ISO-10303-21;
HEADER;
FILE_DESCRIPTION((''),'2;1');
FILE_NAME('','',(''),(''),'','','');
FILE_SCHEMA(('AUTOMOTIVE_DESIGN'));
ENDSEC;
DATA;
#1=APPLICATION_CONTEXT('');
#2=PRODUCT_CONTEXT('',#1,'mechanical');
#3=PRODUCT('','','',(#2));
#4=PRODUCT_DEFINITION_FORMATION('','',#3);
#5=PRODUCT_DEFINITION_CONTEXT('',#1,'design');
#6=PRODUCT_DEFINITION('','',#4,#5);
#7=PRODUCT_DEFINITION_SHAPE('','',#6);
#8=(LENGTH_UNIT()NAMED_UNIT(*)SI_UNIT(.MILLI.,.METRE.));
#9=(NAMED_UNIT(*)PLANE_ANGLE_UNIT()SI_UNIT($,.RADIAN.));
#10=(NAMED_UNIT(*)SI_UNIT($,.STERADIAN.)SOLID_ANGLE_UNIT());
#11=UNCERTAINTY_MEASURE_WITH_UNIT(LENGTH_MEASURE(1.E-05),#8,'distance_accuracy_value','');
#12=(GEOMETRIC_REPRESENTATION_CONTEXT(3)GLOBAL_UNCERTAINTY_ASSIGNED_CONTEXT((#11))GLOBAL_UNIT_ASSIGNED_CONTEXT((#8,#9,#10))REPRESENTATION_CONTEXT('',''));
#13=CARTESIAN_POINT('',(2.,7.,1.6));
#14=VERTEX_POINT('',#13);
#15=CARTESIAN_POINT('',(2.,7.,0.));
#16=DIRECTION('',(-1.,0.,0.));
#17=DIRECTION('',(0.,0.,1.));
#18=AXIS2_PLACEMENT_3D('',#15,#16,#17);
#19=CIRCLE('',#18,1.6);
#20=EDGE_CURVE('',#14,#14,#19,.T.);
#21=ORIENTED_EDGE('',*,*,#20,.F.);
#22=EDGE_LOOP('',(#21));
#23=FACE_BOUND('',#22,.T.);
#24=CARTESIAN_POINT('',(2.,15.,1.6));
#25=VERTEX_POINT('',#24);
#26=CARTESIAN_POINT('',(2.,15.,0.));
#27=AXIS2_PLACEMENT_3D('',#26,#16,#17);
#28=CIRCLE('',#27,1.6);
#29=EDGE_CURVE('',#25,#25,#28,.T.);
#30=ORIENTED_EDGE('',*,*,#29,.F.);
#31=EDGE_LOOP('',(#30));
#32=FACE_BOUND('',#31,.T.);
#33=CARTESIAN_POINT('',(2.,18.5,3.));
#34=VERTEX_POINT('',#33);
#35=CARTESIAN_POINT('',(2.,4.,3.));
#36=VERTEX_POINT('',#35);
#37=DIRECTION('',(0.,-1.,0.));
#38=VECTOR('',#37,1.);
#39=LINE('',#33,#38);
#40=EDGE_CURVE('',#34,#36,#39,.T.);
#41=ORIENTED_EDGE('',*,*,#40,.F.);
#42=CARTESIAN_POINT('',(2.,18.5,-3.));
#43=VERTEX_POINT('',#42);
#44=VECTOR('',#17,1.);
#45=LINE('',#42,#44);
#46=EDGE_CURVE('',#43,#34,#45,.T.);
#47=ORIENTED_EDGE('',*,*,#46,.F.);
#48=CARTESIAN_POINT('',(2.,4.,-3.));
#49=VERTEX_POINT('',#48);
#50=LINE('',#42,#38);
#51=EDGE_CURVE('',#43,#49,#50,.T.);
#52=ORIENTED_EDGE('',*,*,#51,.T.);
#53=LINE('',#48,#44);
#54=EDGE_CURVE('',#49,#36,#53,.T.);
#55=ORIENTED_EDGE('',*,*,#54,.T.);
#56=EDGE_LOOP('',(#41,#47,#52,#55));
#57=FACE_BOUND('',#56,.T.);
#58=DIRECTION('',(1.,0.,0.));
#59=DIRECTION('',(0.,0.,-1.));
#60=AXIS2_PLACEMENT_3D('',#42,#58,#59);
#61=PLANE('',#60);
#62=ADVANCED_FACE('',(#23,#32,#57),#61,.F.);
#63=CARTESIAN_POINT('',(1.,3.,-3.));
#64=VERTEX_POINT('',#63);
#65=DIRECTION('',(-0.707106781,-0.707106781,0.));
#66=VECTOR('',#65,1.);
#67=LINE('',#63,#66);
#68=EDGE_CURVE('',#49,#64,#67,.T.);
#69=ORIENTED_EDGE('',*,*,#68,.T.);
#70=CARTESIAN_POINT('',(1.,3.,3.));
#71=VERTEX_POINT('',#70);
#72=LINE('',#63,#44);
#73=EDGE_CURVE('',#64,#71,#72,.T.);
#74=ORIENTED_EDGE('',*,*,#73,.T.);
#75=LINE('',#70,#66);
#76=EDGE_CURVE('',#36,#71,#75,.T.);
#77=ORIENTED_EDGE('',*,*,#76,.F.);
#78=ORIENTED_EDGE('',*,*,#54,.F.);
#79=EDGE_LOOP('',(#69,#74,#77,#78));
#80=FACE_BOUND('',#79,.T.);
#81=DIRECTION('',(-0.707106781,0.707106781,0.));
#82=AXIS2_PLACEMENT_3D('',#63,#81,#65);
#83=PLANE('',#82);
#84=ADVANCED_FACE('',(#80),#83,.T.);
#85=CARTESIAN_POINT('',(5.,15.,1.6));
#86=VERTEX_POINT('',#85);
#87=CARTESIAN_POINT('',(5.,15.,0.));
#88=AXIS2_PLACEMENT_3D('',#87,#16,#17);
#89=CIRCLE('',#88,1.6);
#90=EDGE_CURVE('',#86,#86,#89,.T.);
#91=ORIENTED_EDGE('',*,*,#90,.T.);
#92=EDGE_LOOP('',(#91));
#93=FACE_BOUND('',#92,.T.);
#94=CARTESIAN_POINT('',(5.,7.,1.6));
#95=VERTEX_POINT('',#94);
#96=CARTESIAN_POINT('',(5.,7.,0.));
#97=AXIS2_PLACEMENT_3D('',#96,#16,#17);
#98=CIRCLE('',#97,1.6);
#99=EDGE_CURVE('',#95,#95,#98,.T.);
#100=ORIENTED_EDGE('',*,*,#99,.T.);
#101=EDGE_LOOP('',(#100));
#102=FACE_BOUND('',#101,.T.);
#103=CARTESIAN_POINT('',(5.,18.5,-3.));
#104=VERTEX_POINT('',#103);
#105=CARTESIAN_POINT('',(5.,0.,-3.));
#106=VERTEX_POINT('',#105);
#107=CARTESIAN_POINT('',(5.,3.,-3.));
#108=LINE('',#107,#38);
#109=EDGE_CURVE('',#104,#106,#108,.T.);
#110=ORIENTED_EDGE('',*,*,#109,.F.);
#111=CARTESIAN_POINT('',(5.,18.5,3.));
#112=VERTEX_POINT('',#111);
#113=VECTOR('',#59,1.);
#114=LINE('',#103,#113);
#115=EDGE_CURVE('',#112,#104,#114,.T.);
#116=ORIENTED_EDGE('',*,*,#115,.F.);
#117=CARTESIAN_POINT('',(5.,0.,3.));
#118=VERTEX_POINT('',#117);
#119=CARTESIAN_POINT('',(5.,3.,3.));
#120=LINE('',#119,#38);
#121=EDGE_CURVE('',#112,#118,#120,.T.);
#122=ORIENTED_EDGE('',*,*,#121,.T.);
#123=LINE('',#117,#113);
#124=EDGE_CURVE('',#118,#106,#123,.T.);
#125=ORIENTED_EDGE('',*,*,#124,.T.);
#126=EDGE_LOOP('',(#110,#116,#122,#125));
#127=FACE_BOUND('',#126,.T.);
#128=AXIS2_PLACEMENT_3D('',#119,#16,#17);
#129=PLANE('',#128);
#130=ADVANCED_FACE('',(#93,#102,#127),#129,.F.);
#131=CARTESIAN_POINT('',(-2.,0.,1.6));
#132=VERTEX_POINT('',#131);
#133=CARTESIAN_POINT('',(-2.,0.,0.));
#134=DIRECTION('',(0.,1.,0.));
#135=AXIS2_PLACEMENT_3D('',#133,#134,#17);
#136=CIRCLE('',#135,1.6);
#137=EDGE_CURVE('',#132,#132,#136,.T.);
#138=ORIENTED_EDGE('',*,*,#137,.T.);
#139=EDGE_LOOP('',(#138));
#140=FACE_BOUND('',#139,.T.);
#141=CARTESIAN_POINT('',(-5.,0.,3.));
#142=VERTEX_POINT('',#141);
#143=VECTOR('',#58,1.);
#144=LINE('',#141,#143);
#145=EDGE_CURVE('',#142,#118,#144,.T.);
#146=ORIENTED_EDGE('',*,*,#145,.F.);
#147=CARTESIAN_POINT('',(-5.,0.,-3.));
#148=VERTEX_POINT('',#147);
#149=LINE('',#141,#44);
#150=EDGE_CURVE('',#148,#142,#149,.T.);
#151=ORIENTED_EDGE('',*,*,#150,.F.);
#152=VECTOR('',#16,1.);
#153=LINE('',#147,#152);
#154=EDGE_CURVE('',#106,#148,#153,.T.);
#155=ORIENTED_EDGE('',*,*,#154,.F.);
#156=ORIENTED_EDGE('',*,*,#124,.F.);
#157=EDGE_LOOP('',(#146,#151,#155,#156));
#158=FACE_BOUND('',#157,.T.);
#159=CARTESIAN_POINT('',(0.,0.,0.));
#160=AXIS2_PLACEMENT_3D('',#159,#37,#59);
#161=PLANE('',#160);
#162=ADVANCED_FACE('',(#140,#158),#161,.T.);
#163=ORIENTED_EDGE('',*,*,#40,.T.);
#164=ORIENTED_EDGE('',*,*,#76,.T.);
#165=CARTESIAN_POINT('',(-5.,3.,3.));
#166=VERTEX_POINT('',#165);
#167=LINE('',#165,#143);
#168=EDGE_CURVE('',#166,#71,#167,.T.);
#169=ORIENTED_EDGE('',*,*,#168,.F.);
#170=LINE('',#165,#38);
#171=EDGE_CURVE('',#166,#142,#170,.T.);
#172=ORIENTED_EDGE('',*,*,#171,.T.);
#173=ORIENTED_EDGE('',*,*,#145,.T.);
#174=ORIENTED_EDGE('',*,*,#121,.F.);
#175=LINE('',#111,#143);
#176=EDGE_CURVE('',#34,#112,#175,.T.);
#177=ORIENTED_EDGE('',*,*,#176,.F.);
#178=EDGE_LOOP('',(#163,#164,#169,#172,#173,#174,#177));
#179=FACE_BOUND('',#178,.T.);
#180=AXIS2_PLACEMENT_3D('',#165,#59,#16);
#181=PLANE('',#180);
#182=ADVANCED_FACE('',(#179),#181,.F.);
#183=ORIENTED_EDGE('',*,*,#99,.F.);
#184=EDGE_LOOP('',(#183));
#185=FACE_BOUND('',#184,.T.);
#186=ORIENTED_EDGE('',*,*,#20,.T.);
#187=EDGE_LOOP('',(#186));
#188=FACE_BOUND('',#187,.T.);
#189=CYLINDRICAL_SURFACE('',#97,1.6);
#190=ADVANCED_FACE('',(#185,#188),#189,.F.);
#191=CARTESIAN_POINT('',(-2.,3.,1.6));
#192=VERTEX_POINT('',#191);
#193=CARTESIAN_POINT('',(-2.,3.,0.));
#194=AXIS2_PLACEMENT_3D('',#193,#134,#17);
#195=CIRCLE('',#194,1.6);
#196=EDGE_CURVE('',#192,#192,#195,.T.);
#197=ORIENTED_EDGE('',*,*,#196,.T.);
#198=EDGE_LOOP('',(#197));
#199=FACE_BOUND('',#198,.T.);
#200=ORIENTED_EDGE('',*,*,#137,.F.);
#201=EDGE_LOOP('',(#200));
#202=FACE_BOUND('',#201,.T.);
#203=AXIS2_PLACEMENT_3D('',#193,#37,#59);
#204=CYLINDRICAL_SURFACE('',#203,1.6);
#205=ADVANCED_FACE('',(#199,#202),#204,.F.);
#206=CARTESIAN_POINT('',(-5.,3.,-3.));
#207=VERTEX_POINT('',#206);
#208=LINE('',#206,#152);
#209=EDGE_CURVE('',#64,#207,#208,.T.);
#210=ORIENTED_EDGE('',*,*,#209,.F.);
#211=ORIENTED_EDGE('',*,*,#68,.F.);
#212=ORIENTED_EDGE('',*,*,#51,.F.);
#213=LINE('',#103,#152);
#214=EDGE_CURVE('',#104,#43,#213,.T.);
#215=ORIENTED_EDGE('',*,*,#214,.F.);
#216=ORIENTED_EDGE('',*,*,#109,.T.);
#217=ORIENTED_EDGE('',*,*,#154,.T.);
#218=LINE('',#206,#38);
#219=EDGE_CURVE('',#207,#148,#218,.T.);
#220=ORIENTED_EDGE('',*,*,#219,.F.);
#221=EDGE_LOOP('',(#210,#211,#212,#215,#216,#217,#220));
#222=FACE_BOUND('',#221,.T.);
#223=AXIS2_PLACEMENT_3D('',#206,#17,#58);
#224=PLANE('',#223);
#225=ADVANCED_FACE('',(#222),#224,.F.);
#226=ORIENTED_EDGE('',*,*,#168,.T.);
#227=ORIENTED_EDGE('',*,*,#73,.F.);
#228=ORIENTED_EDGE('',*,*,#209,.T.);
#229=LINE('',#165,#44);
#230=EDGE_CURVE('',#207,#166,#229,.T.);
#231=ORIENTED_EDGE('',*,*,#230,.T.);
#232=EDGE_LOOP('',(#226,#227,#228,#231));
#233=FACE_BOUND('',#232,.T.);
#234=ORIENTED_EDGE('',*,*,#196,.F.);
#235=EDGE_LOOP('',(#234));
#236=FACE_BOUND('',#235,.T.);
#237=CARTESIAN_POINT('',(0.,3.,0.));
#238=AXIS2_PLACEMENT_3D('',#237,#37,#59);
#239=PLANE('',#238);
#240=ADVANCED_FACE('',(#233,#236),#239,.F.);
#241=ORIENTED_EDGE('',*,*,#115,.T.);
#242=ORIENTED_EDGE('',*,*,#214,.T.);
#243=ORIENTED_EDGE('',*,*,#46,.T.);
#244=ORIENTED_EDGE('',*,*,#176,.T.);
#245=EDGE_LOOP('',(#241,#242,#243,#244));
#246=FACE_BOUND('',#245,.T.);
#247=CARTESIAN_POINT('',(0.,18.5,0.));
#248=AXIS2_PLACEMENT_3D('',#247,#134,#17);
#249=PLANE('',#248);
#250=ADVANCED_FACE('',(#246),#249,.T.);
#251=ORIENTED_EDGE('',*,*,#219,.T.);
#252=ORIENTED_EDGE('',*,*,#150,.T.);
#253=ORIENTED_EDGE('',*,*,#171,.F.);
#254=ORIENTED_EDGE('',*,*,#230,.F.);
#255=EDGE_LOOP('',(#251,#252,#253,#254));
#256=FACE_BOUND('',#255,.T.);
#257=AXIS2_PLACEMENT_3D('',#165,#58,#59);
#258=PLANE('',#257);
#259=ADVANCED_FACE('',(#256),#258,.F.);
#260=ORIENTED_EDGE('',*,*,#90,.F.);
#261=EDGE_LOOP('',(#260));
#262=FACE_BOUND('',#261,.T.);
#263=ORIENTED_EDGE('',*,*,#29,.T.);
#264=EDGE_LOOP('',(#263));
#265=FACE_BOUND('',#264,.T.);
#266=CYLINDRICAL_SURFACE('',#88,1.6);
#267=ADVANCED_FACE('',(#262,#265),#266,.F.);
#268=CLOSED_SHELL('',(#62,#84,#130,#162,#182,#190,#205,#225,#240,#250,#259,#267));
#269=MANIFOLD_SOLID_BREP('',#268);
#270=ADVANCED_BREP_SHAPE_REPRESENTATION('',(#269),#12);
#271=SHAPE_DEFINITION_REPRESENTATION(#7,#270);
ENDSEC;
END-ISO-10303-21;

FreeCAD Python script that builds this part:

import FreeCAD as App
import Part
import Sketcher
from FreeCAD import Vector
Q = App.Units.Quantity

doc = App.newDocument("Part")
body = doc.addObject("PartDesign::Body", "Body")

sketch1 = doc.addObject("Sketcher::SketchObject", "Sketch")
body.addObject(sketch1)
sketch1.AttachmentSupport = (doc.XZ_Plane, [""])
sketch1.MapMode = "FlatFace"
sketch1.addGeometry([
    Part.LineSegment(Vector(-5, -3, 0), Vector(-5, 3, 0)),
    Part.LineSegment(Vector(-5, 3, 0), Vector(5, 3, 0)),
    Part.LineSegment(Vector(5, 3, 0), Vector(5, -3, 0)),
    Part.LineSegment(Vector(5, -3, 0), Vector(-5, -3, 0)),
    Part.Circle(Vector(-2, 0, 0), Vector(0, 0, 1), 1.6),
], False)
sketch1.addConstraint([
    Sketcher.Constraint("Coincident", 0, 2, 1, 1),
    Sketcher.Constraint("Coincident", 1, 2, 2, 1),
    Sketcher.Constraint("Coincident", 2, 2, 3, 1),
    Sketcher.Constraint("Coincident", 3, 2, 0, 1),
    Sketcher.Constraint("Vertical", 0),
    Sketcher.Constraint("Horizontal", 1),
    Sketcher.Constraint("Vertical", 2),
    Sketcher.Constraint("Horizontal", 3),
    Sketcher.Constraint("Symmetric", 0, 2, 2, 2, -1, 1),
    Sketcher.Constraint("PointOnObject", 4, 3, -1),
    Sketcher.Constraint("Diameter", 4, Q("3.2 mm")),
    Sketcher.Constraint("DistanceX", 1, 1, 1, 2, Q("10 mm")),
    Sketcher.Constraint("DistanceY", 0, 1, 0, 2, Q("6 mm")),
    Sketcher.Constraint("DistanceX", 4, 3, -1, 1, Q("2 mm")),
])
pad1 = doc.addObject("PartDesign::Pad", "Pad")
body.addObject(pad1)
pad1.Profile = sketch1
pad1.Length = 3
pad1.Reversed = True

sketch2 = doc.addObject("Sketcher::SketchObject", "Sketch001")
body.addObject(sketch2)
sketch2.AttachmentSupport = (doc.XZ_Plane, [""])
sketch2.MapMode = "FlatFace"
sketch2.AttachmentOffset = App.Placement(Vector(0, 0, -3), App.Rotation())
sketch2.addGeometry([
    Part.LineSegment(Vector(2, -3, 0), Vector(2, 3, 0)),
    Part.LineSegment(Vector(2, 3, 0), Vector(5, 3, 0)),
    Part.LineSegment(Vector(5, 3, 0), Vector(5, -3, 0)),
    Part.LineSegment(Vector(5, -3, 0), Vector(2, -3, 0)),
], False)
sketch2.addConstraint([
    Sketcher.Constraint("Coincident", 0, 2, 1, 1),
    Sketcher.Constraint("Coincident", 1, 2, 2, 1),
    Sketcher.Constraint("Coincident", 2, 2, 3, 1),
    Sketcher.Constraint("Coincident", 3, 2, 0, 1),
    Sketcher.Constraint("Vertical", 0),
    Sketcher.Constraint("Horizontal", 1),
    Sketcher.Constraint("Vertical", 2),
    Sketcher.Constraint("Horizontal", 3),
    Sketcher.Constraint("DistanceX", 1, 1, 1, 2, Q("3 mm")),
    Sketcher.Constraint("DistanceY", 0, 1, 0, 2, Q("6 mm")),
    Sketcher.Constraint("DistanceX", -1, 1, 0, 2, Q("2 mm")),
    Sketcher.Constraint("DistanceY", -1, 1, 0, 2, Q("3 mm")),
])
pad2 = doc.addObject("PartDesign::Pad", "Pad001")
body.addObject(pad2)
pad2.Profile = sketch2
pad2.Length = 15.5
pad2.Reversed = True

sketch3 = doc.addObject("Sketcher::SketchObject", "Sketch002")
body.addObject(sketch3)
sketch3.AttachmentSupport = (doc.YZ_Plane, [""])
sketch3.MapMode = "FlatFace"
sketch3.AttachmentOffset = App.Placement(Vector(0, 0, 2), App.Rotation())
sketch3.addGeometry([
    Part.Circle(Vector(7, 0, 0), Vector(0, 0, 1), 1.6),
    Part.Circle(Vector(15, 0, 0), Vector(0, 0, 1), 1.6),
], False)
sketch3.addConstraint([
    Sketcher.Constraint("Equal", 0, 1),
    Sketcher.Constraint("PointOnObject", 0, 3, -1),
    Sketcher.Constraint("PointOnObject", 1, 3, -1),
    Sketcher.Constraint("Diameter", 0, Q("3.2 mm")),
    Sketcher.Constraint("DistanceX", -1, 1, 0, 3, Q("7 mm")),
    Sketcher.Constraint("DistanceX", -1, 1, 1, 3, Q("15 mm")),
])
pocket1 = doc.addObject("PartDesign::Pocket", "Pocket")
body.addObject(pocket1)
pocket1.Profile = sketch3
pocket1.Type = "ThroughAll"
pocket1.Reversed = True

sketch4 = doc.addObject("Sketcher::SketchObject", "Sketch003")
body.addObject(sketch4)
sketch4.AttachmentSupport = (doc.XY_Plane, [""])
sketch4.MapMode = "FlatFace"
sketch4.AttachmentOffset = App.Placement(Vector(0, 0, 3), App.Rotation())
sketch4.addGeometry([
    Part.LineSegment(Vector(2, 4, 0), Vector(1, 3, 0)),
    Part.LineSegment(Vector(1, 3, 0), Vector(2, 3, 0)),
    Part.LineSegment(Vector(2, 3, 0), Vector(2, 4, 0)),
], False)
sketch4.addConstraint([
    Sketcher.Constraint("Coincident", 0, 2, 1, 1),
    Sketcher.Constraint("Coincident", 1, 2, 2, 1),
    Sketcher.Constraint("Coincident", 2, 2, 0, 1),
    Sketcher.Constraint("Horizontal", 1),
    Sketcher.Constraint("Vertical", 2),
    Sketcher.Constraint("Equal", 1, 2),
    Sketcher.Constraint("DistanceX", 1, 1, 1, 2, Q("1 mm")),
    Sketcher.Constraint("DistanceX", -1, 1, 0, 2, Q("1 mm")),
    Sketcher.Constraint("DistanceY", -1, 1, 0, 2, Q("3 mm")),
])
pad3 = doc.addObject("PartDesign::Pad", "Pad002")
body.addObject(pad3)
pad3.Profile = sketch4
pad3.Length = 6
pad3.Reversed = True

doc.recompute()
